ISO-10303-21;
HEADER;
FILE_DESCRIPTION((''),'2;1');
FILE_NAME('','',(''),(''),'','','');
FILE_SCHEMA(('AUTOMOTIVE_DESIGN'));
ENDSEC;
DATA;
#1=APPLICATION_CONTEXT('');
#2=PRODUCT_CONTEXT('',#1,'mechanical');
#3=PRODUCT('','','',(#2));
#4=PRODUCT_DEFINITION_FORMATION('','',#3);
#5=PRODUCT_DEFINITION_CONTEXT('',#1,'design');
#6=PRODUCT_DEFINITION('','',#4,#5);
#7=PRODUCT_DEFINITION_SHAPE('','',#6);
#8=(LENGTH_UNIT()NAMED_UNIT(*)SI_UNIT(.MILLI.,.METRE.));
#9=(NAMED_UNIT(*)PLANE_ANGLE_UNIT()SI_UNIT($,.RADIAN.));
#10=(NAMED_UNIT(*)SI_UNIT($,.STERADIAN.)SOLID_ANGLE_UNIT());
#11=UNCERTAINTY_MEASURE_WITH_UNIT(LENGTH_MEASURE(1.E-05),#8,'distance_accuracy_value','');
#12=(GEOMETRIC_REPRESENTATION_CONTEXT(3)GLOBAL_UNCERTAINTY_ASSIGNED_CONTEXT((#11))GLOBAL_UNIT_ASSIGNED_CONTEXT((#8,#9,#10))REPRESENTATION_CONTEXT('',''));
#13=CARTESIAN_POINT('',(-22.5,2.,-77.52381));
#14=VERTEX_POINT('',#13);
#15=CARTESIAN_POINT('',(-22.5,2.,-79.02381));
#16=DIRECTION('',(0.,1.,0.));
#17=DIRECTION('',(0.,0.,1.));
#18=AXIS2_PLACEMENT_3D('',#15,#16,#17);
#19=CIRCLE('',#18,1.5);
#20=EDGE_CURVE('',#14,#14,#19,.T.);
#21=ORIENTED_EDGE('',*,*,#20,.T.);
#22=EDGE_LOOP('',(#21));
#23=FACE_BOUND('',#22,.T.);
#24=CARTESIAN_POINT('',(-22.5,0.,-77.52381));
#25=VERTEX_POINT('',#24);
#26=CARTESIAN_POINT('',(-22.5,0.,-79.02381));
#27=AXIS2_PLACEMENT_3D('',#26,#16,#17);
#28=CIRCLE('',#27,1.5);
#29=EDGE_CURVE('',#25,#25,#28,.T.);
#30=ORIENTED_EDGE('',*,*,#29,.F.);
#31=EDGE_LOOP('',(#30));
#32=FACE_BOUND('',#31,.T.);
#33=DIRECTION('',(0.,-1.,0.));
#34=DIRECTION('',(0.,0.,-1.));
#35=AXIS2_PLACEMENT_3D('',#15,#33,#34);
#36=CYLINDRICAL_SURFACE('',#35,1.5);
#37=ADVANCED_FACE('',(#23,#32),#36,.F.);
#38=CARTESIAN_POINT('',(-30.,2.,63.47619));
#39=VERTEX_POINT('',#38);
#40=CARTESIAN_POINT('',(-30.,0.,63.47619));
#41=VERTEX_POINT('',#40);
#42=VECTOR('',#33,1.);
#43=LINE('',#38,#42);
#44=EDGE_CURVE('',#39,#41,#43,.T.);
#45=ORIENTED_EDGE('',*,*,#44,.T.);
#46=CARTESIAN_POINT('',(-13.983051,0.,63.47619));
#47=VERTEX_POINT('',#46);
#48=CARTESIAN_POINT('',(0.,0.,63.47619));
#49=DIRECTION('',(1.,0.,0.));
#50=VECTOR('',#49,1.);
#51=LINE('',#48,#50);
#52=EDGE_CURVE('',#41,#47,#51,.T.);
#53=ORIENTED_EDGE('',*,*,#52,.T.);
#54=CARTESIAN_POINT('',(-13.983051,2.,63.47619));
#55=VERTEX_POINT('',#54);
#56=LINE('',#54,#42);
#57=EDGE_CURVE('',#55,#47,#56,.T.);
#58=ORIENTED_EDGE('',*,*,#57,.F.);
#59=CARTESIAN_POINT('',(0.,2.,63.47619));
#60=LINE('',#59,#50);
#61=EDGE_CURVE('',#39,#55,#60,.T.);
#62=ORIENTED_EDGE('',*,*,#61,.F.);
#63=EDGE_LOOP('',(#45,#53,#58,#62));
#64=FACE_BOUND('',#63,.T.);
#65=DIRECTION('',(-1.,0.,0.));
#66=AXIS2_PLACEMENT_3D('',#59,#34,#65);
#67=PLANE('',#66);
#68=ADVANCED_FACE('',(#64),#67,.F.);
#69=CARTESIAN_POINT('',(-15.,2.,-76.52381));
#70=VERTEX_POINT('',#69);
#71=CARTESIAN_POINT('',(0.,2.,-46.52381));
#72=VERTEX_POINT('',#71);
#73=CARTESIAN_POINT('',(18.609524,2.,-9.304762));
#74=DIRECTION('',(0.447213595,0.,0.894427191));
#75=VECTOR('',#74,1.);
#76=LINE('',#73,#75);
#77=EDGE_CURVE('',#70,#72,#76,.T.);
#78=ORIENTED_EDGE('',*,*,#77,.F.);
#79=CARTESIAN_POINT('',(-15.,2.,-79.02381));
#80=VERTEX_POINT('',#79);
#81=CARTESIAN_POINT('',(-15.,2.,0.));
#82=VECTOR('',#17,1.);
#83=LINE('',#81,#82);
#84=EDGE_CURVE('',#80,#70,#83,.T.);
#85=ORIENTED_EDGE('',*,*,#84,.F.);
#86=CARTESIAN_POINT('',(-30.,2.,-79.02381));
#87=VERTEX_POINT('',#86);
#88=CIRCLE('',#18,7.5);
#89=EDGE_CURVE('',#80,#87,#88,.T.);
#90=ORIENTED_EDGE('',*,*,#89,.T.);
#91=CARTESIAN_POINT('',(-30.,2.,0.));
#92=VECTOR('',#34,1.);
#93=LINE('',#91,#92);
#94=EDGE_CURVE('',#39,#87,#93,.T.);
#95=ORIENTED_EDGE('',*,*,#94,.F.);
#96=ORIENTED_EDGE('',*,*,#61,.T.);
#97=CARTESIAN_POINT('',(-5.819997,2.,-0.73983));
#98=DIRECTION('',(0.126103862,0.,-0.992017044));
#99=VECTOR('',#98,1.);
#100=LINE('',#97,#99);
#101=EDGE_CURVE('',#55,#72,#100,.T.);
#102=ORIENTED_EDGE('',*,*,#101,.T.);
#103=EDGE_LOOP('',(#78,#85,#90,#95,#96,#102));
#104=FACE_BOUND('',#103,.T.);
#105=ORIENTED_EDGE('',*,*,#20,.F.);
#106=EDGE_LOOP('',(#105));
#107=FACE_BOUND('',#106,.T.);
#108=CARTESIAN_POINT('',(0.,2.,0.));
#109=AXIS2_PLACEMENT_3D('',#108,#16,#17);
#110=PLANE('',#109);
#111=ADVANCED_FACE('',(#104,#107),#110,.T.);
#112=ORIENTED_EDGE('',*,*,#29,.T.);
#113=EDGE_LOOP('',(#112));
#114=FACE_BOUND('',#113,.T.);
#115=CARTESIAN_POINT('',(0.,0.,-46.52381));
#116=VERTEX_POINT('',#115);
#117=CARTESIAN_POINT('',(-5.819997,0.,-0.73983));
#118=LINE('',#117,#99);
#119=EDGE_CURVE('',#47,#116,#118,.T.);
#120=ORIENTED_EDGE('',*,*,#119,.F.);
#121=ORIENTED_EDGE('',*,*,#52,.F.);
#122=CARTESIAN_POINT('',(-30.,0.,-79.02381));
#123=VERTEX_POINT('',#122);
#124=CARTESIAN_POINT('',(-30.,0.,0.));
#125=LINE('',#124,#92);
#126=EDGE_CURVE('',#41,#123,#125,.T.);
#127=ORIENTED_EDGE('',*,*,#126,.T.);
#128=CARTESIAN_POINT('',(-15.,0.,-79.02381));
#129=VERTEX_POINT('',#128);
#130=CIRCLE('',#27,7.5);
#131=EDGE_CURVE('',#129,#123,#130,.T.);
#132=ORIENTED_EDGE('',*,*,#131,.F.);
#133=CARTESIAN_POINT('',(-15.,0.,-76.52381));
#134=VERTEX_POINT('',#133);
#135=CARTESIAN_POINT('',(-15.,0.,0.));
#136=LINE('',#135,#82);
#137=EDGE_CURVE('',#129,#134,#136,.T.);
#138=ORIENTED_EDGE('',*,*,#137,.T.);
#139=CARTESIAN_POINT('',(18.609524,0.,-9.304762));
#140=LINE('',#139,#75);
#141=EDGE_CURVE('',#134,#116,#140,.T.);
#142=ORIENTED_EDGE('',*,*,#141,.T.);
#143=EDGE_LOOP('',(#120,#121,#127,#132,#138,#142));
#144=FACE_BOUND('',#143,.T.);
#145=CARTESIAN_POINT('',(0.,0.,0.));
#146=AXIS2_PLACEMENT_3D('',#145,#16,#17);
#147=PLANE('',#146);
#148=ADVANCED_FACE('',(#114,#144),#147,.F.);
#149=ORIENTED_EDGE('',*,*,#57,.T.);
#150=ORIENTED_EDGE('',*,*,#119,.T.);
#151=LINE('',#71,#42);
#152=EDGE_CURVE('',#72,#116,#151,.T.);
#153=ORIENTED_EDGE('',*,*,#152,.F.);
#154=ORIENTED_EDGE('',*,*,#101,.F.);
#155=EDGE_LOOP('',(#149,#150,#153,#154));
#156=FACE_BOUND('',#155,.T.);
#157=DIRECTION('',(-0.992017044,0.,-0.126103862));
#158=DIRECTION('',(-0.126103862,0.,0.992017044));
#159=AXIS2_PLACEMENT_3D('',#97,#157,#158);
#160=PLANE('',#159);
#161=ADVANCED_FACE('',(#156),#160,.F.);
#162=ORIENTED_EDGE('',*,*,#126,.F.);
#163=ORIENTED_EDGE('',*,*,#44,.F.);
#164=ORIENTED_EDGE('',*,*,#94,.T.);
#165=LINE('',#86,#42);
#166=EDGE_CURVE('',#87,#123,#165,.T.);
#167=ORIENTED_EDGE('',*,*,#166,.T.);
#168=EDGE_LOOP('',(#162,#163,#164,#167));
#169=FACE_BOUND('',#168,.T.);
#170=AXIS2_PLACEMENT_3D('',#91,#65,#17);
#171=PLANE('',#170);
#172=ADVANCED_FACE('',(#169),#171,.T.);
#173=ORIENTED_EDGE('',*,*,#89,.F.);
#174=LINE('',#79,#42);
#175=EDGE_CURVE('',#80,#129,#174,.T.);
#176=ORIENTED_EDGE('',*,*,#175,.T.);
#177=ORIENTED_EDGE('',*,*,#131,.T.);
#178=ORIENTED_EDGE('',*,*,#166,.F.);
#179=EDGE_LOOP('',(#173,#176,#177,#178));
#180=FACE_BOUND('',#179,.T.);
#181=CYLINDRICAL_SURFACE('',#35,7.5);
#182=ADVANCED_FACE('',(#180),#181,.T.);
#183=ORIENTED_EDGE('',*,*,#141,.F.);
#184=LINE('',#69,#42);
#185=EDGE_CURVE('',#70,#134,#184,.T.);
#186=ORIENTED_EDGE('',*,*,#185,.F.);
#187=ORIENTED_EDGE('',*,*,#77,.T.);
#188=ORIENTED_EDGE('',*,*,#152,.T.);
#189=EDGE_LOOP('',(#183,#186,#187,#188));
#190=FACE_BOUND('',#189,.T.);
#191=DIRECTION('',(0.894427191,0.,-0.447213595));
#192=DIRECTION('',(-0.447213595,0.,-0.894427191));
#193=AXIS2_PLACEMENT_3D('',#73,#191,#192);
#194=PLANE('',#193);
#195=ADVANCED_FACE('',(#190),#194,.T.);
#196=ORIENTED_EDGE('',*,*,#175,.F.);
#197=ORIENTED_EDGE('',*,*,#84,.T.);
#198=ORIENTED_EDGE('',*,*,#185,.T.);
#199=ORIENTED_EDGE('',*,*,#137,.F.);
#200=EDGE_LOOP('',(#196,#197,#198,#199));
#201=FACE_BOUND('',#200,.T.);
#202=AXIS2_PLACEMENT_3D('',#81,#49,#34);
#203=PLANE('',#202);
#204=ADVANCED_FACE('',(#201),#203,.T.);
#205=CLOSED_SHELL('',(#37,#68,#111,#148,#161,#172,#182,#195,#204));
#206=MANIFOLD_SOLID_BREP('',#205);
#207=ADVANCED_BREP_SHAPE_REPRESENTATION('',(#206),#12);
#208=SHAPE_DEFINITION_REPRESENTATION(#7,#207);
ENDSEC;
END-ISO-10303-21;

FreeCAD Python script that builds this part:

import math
import FreeCAD as App
import Part
import Sketcher

V = App.Vector
Q = App.Units.Quantity

doc = App.newDocument("Part")
body = doc.addObject("PartDesign::Body", "Body")

# Sketch on XZ plane
sketch1 = body.newObject("Sketcher::SketchObject", "Sketch")
sketch1.AttachmentSupport = (doc.getObject("XZ_Plane"), [""])
sketch1.MapMode = "FlatFace"
sketch1.addGeometry(Part.LineSegment(V(-30, -79.02381, 0), V(-30, 63.47619, 0)), False)
sketch1.addGeometry(Part.LineSegment(V(-30, 63.47619, 0), V(-13.983051, 63.47619, 0)), False)
sketch1.addGeometry(Part.LineSegment(V(-13.983051, 63.47619, 0), V(0, -46.52381, 0)), False)
sketch1.addGeometry(Part.LineSegment(V(0, -46.52381, 0), V(-15, -76.52381, 0)), False)
sketch1.addGeometry(Part.LineSegment(V(-15, -76.52381, 0), V(-15, -79.02381, 0)), False)
sketch1.addGeometry(Part.ArcOfCircle(Part.Circle(V(-22.5, -79.02381, 0), V(0, 0, 1), 7.5), math.radians(180), math.radians(360)), False)
sketch1.addGeometry(Part.Circle(V(-22.5, -79.02381, 0), V(0, 0, 1), 1.5), False)
sketch1.addConstraint(Sketcher.Constraint("Coincident", 0, 2, 1, 1))
sketch1.addConstraint(Sketcher.Constraint("Coincident", 1, 2, 2, 1))
sketch1.addConstraint(Sketcher.Constraint("Coincident", 2, 2, 3, 1))
sketch1.addConstraint(Sketcher.Constraint("Coincident", 3, 2, 4, 1))
sketch1.addConstraint(Sketcher.Constraint("Tangent", 4, 2, 5, 2))
sketch1.addConstraint(Sketcher.Constraint("Tangent", 5, 1, 0, 1))
sketch1.addConstraint(Sketcher.Constraint("Vertical", 0))
sketch1.addConstraint(Sketcher.Constraint("Horizontal", 1))
sketch1.addConstraint(Sketcher.Constraint("Vertical", 4))
sketch1.addConstraint(Sketcher.Constraint("Coincident", 6, 3, 5, 3))
sketch1.addConstraint(Sketcher.Constraint("PointOnObject", 2, 2, -2))
sketch1.addConstraint(Sketcher.Constraint("Diameter", 6, Q("3 mm")))
sketch1.addConstraint(Sketcher.Constraint("Radius", 5, Q("7.5 mm")))
sketch1.addConstraint(Sketcher.Constraint("DistanceY", 0, 1, 0, 2, Q("142.5 mm")))
sketch1.addConstraint(Sketcher.Constraint("DistanceY", 4, 2, 4, 1, Q("2.5 mm")))
sketch1.addConstraint(Sketcher.Constraint("DistanceX", 0, 2, -1, 1, Q("30 mm")))
sketch1.addConstraint(Sketcher.Constraint("DistanceY", 2, 2, 1, 2, Q("110 mm")))
sketch1.addConstraint(Sketcher.Constraint("DistanceX", 1, 1, 1, 2, Q("16.016949 mm")))
sketch1.addConstraint(Sketcher.Constraint("DistanceY", 5, 3, -1, 1, Q("79.02381 mm")))
pad1 = body.newObject("PartDesign::Pad", "Pad")
pad1.Profile = sketch1
pad1.Length = 2
pad1.Reversed = True

doc.recompute()
